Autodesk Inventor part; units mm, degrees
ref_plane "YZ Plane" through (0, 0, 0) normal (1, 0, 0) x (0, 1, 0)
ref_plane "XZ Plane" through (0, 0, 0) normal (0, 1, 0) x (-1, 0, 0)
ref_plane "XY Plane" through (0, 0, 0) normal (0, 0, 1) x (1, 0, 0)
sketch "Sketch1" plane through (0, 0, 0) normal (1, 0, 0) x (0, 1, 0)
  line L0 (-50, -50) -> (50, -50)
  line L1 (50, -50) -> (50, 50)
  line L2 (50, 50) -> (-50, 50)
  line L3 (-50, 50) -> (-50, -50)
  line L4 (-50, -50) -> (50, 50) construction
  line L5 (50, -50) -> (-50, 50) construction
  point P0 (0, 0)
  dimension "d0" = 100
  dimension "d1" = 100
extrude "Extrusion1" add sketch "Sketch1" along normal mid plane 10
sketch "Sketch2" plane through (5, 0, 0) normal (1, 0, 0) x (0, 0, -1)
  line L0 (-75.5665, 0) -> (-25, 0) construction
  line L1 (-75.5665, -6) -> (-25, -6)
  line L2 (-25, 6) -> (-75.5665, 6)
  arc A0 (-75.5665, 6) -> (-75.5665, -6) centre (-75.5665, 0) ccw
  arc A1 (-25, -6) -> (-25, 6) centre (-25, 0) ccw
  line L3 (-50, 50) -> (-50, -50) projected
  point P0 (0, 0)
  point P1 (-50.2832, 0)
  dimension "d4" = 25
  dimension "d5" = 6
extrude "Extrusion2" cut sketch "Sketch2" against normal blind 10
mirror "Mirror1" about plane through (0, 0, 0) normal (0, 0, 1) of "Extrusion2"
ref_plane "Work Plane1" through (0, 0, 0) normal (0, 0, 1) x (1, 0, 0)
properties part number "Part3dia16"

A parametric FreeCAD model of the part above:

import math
import FreeCAD as App
import Part
import Sketcher
Q = App.Units.Quantity

doc = App.newDocument("Part")
body = doc.addObject("PartDesign::Body", "Body")

# Sketch on YZ plane
sketch1 = body.newObject("Sketcher::SketchObject", "Sketch")
sketch1.AttachmentSupport = (doc.getObject("YZ_Plane"), [""])
sketch1.MapMode = "FlatFace"
sketch1.addGeometry([
    Part.LineSegment(App.Vector(-50, 50, 0), App.Vector(-50, -50, 0)),
    Part.LineSegment(App.Vector(-50, -50, 0), App.Vector(50, -50, 0)),
    Part.LineSegment(App.Vector(50, -50, 0), App.Vector(50, 50, 0)),
    Part.LineSegment(App.Vector(50, 50, 0), App.Vector(-50, 50, 0)),
], False)
sketch1.addConstraint([
    Sketcher.Constraint("Coincident", 0, 2, 1, 1),
    Sketcher.Constraint("Coincident", 1, 2, 2, 1),
    Sketcher.Constraint("Coincident", 2, 2, 3, 1),
    Sketcher.Constraint("Coincident", 3, 2, 0, 1),
    Sketcher.Constraint("Vertical", 0),
    Sketcher.Constraint("Horizontal", 1),
    Sketcher.Constraint("Vertical", 2),
    Sketcher.Constraint("Horizontal", 3),
    Sketcher.Constraint("Symmetric", 0, 2, 2, 2, -1, 1),
    Sketcher.Constraint("Equal", 3, 0),
    Sketcher.Constraint("DistanceX", 1, 1, 1, 2, Q("100 mm")),
])
pad1 = body.newObject("PartDesign::Pad", "Pad")
pad1.Profile = sketch1
pad1.Length = 10
pad1.Midplane = True

# Sketch on YZ plane
sketch2 = body.newObject("Sketcher::SketchObject", "Sketch001")
sketch2.AttachmentSupport = (doc.getObject("YZ_Plane"), [""])
sketch2.MapMode = "FlatFace"
sketch2.AttachmentOffset = App.Placement(App.Vector(0, 0, 5), App.Rotation())
sketch2.addGeometry([
    Part.ArcOfCircle(Part.Circle(App.Vector(0, 75.5665, 0), App.Vector(0, 0, 1), 6), math.radians(0), math.radians(180)),
    Part.LineSegment(App.Vector(-6, 75.5665, 0), App.Vector(-6, 25, 0)),
    Part.ArcOfCircle(Part.Circle(App.Vector(0, 25, 0), App.Vector(0, 0, 1), 6), math.radians(180), math.radians(360)),
    Part.LineSegment(App.Vector(6, 25, 0), App.Vector(6, 75.5665, 0)),
], False)
sketch2.addConstraint([
    Sketcher.Constraint("Tangent", 0, 2, 1, 1),
    Sketcher.Constraint("Tangent", 1, 2, 2, 1),
    Sketcher.Constraint("Tangent", 2, 2, 3, 1),
    Sketcher.Constraint("Tangent", 3, 2, 0, 1),
    Sketcher.Constraint("Vertical", 1),
    Sketcher.Constraint("Vertical", 3),
    Sketcher.Constraint("PointOnObject", 0, 3, -2),
    Sketcher.Constraint("Radius", 0, Q("6 mm")),
    Sketcher.Constraint("DistanceY", -1, 1, 2, 3, Q("25 mm")),
    Sketcher.Constraint("DistanceY", 1, 2, 1, 1, Q("50.5665 mm")),
])
pocket1 = body.newObject("PartDesign::Pocket", "Pocket")
pocket1.Profile = sketch2
pocket1.Length = 10
doc.recompute()

mirrored = body.newObject("PartDesign::Mirrored", "Mirrored")
mirrored.Originals = [pocket1]
mirrored.MirrorPlane = (doc.getObject("XY_Plane"), [""])
body.Tip = mirrored

doc.recompute()
